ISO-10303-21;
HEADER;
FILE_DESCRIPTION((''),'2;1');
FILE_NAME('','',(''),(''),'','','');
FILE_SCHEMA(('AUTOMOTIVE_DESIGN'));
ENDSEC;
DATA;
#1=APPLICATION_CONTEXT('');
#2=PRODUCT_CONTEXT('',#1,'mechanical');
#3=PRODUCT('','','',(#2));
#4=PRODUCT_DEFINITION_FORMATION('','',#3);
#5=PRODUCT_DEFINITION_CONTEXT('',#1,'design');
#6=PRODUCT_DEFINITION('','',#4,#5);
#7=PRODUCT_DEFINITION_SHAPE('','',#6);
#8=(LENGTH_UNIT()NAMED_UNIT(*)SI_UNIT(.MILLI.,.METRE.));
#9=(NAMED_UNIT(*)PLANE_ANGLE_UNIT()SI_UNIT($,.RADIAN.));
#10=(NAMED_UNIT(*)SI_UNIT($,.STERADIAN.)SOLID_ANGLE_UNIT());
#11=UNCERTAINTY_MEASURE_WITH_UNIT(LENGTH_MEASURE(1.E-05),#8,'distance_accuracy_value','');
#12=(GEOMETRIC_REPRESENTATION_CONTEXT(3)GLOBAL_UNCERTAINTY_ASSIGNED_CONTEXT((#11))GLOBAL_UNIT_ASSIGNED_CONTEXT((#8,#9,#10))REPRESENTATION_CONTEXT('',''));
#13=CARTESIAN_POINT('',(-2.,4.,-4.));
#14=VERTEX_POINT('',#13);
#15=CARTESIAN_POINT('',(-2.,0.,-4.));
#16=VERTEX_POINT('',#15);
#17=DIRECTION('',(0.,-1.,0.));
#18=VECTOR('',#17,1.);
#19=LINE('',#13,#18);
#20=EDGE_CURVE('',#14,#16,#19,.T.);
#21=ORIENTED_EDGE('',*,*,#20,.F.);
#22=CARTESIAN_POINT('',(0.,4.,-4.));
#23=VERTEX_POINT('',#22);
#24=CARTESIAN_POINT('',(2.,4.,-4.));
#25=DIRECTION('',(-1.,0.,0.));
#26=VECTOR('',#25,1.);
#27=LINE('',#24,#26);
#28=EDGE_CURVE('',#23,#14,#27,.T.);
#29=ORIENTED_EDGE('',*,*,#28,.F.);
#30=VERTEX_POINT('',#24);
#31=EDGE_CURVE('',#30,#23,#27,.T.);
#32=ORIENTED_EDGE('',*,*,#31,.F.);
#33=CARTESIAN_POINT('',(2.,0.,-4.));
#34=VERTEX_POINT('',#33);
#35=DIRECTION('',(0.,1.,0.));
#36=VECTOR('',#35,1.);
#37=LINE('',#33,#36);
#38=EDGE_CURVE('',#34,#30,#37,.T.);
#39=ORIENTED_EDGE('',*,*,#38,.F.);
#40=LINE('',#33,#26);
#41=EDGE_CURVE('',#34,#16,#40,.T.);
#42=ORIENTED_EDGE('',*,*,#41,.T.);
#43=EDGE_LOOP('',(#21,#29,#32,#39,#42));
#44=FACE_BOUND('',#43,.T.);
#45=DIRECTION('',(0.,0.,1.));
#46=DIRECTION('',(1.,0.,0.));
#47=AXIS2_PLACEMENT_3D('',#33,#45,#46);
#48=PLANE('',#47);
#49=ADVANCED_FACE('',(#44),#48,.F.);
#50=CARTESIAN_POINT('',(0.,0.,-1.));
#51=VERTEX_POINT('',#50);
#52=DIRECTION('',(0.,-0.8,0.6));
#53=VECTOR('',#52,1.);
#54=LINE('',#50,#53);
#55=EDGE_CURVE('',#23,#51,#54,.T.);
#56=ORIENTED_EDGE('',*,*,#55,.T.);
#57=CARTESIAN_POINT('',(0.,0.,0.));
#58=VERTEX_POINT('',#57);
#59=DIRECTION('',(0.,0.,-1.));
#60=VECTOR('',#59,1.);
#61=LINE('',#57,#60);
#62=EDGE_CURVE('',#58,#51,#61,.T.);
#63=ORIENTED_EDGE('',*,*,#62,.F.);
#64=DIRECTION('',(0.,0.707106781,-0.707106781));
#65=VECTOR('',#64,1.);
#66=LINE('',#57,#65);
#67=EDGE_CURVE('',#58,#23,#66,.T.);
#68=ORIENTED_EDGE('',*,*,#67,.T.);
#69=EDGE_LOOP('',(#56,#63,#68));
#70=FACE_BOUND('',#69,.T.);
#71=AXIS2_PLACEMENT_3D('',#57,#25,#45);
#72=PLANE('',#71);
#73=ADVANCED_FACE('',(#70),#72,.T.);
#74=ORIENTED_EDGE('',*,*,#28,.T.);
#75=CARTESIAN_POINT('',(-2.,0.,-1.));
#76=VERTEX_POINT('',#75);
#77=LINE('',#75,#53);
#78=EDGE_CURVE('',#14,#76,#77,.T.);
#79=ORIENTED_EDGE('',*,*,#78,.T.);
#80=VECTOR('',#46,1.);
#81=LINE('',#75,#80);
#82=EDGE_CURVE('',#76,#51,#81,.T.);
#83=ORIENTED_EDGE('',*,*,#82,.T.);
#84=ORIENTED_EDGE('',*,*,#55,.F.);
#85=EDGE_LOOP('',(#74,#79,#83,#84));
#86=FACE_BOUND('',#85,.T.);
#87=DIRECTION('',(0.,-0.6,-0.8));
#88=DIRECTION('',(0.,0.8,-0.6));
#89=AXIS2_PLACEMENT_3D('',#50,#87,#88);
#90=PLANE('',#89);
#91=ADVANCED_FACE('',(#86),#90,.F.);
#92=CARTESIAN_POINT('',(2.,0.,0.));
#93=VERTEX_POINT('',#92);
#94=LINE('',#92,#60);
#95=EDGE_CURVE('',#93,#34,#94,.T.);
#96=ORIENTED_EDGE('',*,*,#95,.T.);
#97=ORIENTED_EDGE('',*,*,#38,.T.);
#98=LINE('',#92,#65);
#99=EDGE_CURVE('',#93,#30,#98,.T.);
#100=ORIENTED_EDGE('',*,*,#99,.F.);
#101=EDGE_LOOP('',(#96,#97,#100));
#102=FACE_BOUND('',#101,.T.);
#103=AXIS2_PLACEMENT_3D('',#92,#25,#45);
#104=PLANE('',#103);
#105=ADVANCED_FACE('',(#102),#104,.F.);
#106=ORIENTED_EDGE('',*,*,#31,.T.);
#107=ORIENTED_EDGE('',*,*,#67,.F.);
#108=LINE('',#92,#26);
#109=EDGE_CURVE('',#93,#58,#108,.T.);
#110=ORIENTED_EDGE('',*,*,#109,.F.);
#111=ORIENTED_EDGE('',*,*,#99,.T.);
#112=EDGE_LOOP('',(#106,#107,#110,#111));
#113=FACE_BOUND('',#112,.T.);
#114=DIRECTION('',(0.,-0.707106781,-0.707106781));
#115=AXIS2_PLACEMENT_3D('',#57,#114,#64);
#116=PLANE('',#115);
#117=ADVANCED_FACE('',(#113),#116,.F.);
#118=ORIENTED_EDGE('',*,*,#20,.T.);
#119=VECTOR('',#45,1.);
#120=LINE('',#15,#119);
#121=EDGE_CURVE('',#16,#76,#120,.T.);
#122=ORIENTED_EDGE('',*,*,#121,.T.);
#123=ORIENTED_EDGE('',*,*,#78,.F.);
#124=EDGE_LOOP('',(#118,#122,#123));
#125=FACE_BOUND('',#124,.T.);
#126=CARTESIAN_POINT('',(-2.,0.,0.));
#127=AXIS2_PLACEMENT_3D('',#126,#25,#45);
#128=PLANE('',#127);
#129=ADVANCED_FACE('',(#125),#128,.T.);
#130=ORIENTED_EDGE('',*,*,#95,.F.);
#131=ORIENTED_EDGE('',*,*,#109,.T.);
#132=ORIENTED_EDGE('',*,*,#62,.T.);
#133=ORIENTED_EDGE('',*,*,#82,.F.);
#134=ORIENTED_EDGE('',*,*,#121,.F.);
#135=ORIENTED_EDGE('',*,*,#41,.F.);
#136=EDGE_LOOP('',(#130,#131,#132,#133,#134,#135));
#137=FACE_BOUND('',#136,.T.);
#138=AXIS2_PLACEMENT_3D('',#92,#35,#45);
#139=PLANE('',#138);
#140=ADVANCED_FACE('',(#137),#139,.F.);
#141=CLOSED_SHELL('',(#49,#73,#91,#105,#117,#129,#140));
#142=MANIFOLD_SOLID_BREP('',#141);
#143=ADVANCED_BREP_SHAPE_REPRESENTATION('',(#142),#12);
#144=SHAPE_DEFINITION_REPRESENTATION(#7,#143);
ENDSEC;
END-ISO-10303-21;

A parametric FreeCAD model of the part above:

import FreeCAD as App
import Part
import Sketcher

V = App.Vector

doc = App.newDocument("Part")
params = doc.addObject("Spreadsheet::Sheet", "Params")
for row, (alias, value) in enumerate([
    ("sketch1_width", "4 mm"),
    ("pad1_length", "2 mm"),
    ("sketch2_width", "4 mm"),
    ("sketch2_height", "3 mm"),
    ("pad2_length", "2 mm"),
    ("sketch3_width", "4 mm"),
    ("pocket1_length", "2 mm"),
    ("sketch4_width", "4 mm"),
    ("sketch4_height", "3 mm"),
    ("pocket2_length", "2 mm"),
], start=1):
    params.set(f"A{row}", alias)
    params.set(f"B{row}", "=" + value)
    params.setAlias(f"B{row}", alias)

body = doc.addObject("PartDesign::Body", "Body")

sketch1 = body.newObject("Sketcher::SketchObject", "Sketch")
sketch1.AttachmentSupport = (doc.getObject("YZ_Plane"), [""])
sketch1.MapMode = "FlatFace"
sketch1.addGeometry([
    Part.LineSegment(V(4, 0, 0), V(0, 0, 0)),
    Part.LineSegment(V(0, 0, 0), V(0, -4, 0)),
    Part.LineSegment(V(0, -4, 0), V(4, -4, 0)),
    Part.LineSegment(V(4, -4, 0), V(4, 0, 0)),
], False)
sketch1.addConstraint([
    Sketcher.Constraint("Coincident", 0, 2, 1, 1),
    Sketcher.Constraint("Coincident", 1, 2, 2, 1),
    Sketcher.Constraint("Coincident", 2, 2, 3, 1),
    Sketcher.Constraint("Coincident", 3, 2, 0, 1),
    Sketcher.Constraint("Horizontal", 0),
    Sketcher.Constraint("Vertical", 1),
    Sketcher.Constraint("Horizontal", 2),
    Sketcher.Constraint("Vertical", 3),
    Sketcher.Constraint("Coincident", 0, 2, -1, 1),
    Sketcher.Constraint("Equal", 2, 1),
    Sketcher.Constraint("DistanceX", 0, 2, 0, 1, 4.0),
])
sketch1.setExpression("Constraints[10]", "Params.sketch1_width")
pad1 = body.newObject("PartDesign::Pad", "Pad")
pad1.Profile = sketch1
pad1.setExpression("Length", "Params.pad1_length")

sketch2 = body.newObject("Sketcher::SketchObject", "Sketch001")
sketch2.AttachmentSupport = (doc.getObject("YZ_Plane"), [""])
sketch2.MapMode = "FlatFace"
sketch2.addGeometry([
    Part.LineSegment(V(4, -4, 0), V(0, -4, 0)),
    Part.LineSegment(V(0, -4, 0), V(0, -1, 0)),
    Part.LineSegment(V(0, -1, 0), V(4, -1, 0)),
    Part.LineSegment(V(4, -1, 0), V(4, -4, 0)),
], False)
sketch2.addConstraint([
    Sketcher.Constraint("Coincident", 0, 2, 1, 1),
    Sketcher.Constraint("Coincident", 1, 2, 2, 1),
    Sketcher.Constraint("Coincident", 2, 2, 3, 1),
    Sketcher.Constraint("Coincident", 3, 2, 0, 1),
    Sketcher.Constraint("Horizontal", 0),
    Sketcher.Constraint("Vertical", 1),
    Sketcher.Constraint("Horizontal", 2),
    Sketcher.Constraint("Vertical", 3),
    Sketcher.Constraint("PointOnObject", 0, 2, -2),
    Sketcher.Constraint("DistanceX", 0, 2, 0, 1, 4.0),
    Sketcher.Constraint("DistanceY", 1, 1, 1, 2, 3.0),
    Sketcher.Constraint("DistanceY", 0, 2, -1, 1, 4.0),
])
sketch2.setExpression("Constraints[9]", "Params.sketch2_width")
sketch2.setExpression("Constraints[10]", "Params.sketch2_height")
pad2 = body.newObject("PartDesign::Pad", "Pad001")
pad2.Profile = sketch2
pad2.setExpression("Length", "Params.pad2_length")
pad2.Reversed = True

sketch3 = body.newObject("Sketcher::SketchObject", "Sketch002")
sketch3.AttachmentSupport = (doc.getObject("YZ_Plane"), [""])
sketch3.MapMode = "FlatFace"
sketch3.AttachmentOffset = App.Placement(V(0, 0, 2), App.Rotation())
sketch3.addGeometry([
    Part.LineSegment(V(0, 0, 0), V(4, -4, 0)),
    Part.LineSegment(V(4, -4, 0), V(4, 0, 0)),
    Part.LineSegment(V(4, 0, 0), V(0, 0, 0)),
], False)
sketch3.addConstraint([
    Sketcher.Constraint("Coincident", 0, 2, 1, 1),
    Sketcher.Constraint("Coincident", 1, 2, 2, 1),
    Sketcher.Constraint("Coincident", 2, 2, 0, 1),
    Sketcher.Constraint("Vertical", 1),
    Sketcher.Constraint("Horizontal", 2),
    Sketcher.Constraint("Coincident", 2, 2, -1, 1),
    Sketcher.Constraint("Equal", 2, 1),
    Sketcher.Constraint("DistanceX", 2, 2, 2, 1, 4.0),
])
sketch3.setExpression("Constraints[7]", "Params.sketch3_width")
pocket1 = body.newObject("PartDesign::Pocket", "Pocket")
pocket1.Profile = sketch3
pocket1.setExpression("Length", "Params.pocket1_length")

sketch4 = body.newObject("Sketcher::SketchObject", "Sketch003")
sketch4.AttachmentSupport = (doc.getObject("YZ_Plane"), [""])
sketch4.MapMode = "FlatFace"
sketch4.AttachmentOffset = App.Placement(V(0, 0, -2), App.Rotation())
sketch4.addGeometry([
    Part.LineSegment(V(4, -4, 0), V(0, -1, 0)),
    Part.LineSegment(V(0, -1, 0), V(4, -1, 0)),
    Part.LineSegment(V(4, -1, 0), V(4, -4, 0)),
], False)
sketch4.addConstraint([
    Sketcher.Constraint("Coincident", 0, 2, 1, 1),
    Sketcher.Constraint("Coincident", 1, 2, 2, 1),
    Sketcher.Constraint("Coincident", 2, 2, 0, 1),
    Sketcher.Constraint("Horizontal", 1),
    Sketcher.Constraint("Vertical", 2),
    Sketcher.Constraint("PointOnObject", 0, 2, -2),
    Sketcher.Constraint("DistanceX", 1, 1, 1, 2, 4.0),
    Sketcher.Constraint("DistanceY", 2, 2, 2, 1, 3.0),
    Sketcher.Constraint("DistanceY", 0, 2, -1, 1, 1.0),
])
sketch4.setExpression("Constraints[6]", "Params.sketch4_width")
sketch4.setExpression("Constraints[7]", "Params.sketch4_height")
pocket2 = body.newObject("PartDesign::Pocket", "Pocket001")
pocket2.Profile = sketch4
pocket2.setExpression("Length", "Params.pocket2_length")
pocket2.Reversed = True

doc.recompute()
